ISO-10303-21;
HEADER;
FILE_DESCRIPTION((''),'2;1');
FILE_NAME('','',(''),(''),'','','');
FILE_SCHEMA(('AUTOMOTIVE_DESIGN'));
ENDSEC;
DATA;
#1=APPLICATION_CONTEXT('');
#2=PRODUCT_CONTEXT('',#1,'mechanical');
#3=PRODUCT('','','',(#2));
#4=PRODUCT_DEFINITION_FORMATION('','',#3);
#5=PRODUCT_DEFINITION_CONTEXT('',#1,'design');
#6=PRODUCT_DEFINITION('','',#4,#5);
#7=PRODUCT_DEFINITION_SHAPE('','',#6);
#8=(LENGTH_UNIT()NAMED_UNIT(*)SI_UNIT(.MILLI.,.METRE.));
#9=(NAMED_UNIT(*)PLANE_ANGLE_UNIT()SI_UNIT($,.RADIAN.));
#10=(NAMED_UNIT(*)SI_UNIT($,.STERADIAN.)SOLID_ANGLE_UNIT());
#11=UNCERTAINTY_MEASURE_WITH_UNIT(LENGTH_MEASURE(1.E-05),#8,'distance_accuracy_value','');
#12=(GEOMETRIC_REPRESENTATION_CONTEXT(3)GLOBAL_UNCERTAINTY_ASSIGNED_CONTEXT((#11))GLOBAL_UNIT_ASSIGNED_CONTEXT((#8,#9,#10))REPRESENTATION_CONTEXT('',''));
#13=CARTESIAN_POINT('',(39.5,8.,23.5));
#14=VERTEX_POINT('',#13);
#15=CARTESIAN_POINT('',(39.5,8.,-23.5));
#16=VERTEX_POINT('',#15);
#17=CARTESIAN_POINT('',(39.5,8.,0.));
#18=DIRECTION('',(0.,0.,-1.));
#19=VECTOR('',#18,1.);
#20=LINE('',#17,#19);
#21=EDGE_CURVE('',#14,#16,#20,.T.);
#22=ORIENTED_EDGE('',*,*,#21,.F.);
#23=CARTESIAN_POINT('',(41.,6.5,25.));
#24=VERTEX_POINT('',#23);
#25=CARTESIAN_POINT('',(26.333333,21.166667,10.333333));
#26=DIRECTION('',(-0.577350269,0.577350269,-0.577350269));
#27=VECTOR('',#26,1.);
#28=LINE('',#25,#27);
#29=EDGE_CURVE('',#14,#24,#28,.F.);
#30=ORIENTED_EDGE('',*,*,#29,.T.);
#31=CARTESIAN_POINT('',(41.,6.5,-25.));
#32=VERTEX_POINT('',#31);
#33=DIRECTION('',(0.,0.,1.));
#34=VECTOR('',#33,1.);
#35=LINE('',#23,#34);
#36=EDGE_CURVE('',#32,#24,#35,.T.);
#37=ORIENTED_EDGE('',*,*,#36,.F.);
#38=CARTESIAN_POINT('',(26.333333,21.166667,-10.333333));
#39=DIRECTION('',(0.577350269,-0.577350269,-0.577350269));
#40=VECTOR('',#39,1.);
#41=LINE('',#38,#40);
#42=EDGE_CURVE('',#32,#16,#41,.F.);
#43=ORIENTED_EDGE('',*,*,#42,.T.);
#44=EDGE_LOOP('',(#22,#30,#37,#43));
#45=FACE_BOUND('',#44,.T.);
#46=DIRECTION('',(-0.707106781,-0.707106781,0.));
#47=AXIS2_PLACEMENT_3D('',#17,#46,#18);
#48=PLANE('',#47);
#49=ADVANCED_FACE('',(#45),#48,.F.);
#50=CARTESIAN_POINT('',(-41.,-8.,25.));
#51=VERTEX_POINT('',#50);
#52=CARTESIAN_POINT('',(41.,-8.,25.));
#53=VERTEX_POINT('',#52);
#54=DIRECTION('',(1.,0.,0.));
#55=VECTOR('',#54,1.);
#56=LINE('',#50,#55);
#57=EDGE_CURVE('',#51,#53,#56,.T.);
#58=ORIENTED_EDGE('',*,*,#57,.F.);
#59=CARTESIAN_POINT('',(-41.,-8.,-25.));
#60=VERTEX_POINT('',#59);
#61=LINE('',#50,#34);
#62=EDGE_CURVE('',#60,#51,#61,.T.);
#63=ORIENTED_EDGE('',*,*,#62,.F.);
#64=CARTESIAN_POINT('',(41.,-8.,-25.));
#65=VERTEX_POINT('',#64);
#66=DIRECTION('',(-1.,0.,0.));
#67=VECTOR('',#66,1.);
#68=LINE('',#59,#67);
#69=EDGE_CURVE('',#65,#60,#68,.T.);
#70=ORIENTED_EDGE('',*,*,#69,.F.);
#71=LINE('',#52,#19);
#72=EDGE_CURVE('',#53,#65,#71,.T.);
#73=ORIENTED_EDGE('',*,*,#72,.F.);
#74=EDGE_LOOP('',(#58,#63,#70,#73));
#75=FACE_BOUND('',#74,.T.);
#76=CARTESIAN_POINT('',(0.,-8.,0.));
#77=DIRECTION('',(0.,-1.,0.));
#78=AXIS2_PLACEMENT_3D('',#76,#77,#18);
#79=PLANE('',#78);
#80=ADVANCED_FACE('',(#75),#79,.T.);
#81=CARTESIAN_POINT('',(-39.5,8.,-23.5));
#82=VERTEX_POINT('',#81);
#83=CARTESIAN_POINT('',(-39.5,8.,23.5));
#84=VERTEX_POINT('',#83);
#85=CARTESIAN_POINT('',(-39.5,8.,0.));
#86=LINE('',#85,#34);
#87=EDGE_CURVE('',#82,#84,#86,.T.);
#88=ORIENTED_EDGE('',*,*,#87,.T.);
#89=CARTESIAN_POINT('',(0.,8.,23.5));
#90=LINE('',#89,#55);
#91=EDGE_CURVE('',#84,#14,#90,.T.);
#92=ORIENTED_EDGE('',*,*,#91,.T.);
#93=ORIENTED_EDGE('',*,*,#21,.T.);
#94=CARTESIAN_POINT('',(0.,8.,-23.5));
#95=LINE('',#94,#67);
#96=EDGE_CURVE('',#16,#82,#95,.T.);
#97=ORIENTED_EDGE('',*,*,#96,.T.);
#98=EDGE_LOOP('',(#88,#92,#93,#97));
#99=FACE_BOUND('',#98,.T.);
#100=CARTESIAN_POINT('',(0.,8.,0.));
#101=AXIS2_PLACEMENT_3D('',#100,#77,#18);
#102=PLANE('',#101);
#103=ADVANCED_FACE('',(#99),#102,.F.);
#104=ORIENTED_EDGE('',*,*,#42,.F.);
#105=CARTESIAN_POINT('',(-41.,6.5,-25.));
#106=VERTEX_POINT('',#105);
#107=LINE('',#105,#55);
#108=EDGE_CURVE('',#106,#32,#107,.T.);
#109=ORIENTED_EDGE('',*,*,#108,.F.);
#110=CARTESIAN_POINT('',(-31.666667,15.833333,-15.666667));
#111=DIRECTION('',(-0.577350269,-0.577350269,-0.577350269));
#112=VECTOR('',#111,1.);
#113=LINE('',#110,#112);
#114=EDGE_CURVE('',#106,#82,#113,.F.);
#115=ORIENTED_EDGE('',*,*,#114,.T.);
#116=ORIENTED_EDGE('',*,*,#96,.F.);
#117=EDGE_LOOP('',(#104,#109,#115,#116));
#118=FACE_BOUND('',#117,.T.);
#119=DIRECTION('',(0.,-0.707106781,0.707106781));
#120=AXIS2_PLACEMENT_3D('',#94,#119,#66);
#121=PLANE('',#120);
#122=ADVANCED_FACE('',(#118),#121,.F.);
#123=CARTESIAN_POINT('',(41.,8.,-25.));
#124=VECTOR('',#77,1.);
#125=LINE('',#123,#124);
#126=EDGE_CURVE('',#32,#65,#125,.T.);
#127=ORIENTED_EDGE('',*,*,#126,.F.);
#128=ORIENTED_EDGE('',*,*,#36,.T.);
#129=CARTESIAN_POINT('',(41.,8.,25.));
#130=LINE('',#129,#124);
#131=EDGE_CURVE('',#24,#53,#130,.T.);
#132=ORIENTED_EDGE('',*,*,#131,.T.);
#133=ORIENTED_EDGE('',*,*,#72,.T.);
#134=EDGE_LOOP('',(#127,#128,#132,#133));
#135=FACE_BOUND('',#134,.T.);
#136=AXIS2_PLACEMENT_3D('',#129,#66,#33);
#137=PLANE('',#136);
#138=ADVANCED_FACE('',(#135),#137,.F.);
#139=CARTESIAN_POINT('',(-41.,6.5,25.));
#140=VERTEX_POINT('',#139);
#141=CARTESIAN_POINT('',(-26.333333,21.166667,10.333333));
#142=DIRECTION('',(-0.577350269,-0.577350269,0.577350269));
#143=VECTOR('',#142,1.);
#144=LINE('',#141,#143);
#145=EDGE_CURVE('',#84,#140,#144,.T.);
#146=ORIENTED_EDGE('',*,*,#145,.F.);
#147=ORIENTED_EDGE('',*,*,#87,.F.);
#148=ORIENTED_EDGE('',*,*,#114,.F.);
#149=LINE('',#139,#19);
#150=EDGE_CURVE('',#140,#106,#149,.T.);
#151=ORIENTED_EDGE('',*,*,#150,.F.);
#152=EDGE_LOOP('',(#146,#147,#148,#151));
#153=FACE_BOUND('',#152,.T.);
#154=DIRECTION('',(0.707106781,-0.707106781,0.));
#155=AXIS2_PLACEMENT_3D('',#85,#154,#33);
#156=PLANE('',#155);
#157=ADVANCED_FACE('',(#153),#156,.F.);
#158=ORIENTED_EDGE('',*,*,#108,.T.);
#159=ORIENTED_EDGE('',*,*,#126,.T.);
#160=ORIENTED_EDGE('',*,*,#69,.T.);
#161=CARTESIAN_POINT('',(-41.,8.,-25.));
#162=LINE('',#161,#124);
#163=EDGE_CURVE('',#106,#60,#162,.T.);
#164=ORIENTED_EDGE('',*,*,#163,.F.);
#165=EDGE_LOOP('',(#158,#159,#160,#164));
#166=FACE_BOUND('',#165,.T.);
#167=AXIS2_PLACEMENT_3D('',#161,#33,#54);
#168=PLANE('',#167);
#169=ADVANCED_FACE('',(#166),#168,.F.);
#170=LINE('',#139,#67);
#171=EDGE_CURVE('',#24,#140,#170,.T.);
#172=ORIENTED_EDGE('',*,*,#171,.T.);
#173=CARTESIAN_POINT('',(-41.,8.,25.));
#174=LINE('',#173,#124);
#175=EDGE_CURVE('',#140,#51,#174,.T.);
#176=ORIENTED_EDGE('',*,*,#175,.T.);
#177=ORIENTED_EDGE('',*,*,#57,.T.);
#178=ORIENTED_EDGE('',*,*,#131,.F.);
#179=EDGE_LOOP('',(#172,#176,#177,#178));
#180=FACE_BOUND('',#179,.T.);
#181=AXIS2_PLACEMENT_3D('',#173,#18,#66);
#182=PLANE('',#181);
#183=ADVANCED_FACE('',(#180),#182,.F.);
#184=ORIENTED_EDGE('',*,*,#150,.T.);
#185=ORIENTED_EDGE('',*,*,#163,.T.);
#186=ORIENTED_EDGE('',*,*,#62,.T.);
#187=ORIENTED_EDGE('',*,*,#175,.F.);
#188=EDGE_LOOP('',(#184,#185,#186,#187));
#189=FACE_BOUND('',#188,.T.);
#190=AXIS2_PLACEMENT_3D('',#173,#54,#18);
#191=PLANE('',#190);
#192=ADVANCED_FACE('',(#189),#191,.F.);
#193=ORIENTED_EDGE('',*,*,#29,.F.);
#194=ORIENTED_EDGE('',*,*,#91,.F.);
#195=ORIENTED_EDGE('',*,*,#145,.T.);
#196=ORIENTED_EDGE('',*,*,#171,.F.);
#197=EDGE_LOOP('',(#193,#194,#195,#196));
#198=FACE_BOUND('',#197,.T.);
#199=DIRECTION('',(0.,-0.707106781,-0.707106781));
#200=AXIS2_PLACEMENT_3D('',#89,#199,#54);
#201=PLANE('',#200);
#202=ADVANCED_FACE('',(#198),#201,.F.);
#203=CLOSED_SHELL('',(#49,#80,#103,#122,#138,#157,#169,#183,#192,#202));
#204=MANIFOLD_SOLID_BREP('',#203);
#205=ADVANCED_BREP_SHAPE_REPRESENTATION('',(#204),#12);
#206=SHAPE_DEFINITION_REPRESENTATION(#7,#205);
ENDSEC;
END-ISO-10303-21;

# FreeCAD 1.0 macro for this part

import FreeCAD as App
import Part
import Sketcher

V = App.Vector
Q = App.Units.Quantity


def edges_at(feature, points):
    """Names of the edges that pass closest to the given points."""
    edges = feature.Shape.Edges
    near = lambda p: min(range(len(edges)), key=lambda i: edges[i].distToShape(Part.Vertex(*p))[0])
    return sorted({f"Edge{near(p) + 1}" for p in points})


def add_polygon(sketch, points):
    """Adds a closed chain of lines whose ends are joined by coincident constraints."""
    first, n = sketch.GeometryCount, len(points)
    for a, b in zip(points, points[1:] + points[:1]):
        sketch.addGeometry(Part.LineSegment(App.Vector(*a, 0), App.Vector(*b, 0)), False)
    for i in range(n):
        sketch.addConstraint(Sketcher.Constraint("Coincident", first + i, 2, first + (i + 1) % n, 1))

doc = App.newDocument("Part")
params = doc.addObject("Spreadsheet::Sheet", "Params")
for row, (alias, value) in enumerate([
    ("sketch1_width", "82 mm"),
    ("sketch1_height", "50 mm"),
    ("pad1_length", "16 mm"),
    ("chamfer_size", "1.5 mm"),
], start=1):
    params.set(f"A{row}", alias)
    params.set(f"B{row}", "=" + value)
    params.setAlias(f"B{row}", alias)

body = doc.addObject("PartDesign::Body", "Body")

sketch1 = body.newObject("Sketcher::SketchObject", "Sketch")
sketch1.AttachmentSupport = (doc.getObject("XZ_Plane"), [""])
sketch1.MapMode = "FlatFace"
add_polygon(sketch1, [(-41, -25), (-41, 25), (41, 25), (41, -25)])
sketch1.addConstraint(Sketcher.Constraint("Vertical", 0))
sketch1.addConstraint(Sketcher.Constraint("Horizontal", 1))
sketch1.addConstraint(Sketcher.Constraint("Vertical", 2))
sketch1.addConstraint(Sketcher.Constraint("Horizontal", 3))
sketch1.addConstraint(Sketcher.Constraint("Symmetric", 0, 2, 2, 2, -1, 1))
sketch1.addConstraint(Sketcher.Constraint("DistanceX", 1, 1, 1, 2, Q("82 mm")))
sketch1.addConstraint(Sketcher.Constraint("DistanceY", 0, 1, 0, 2, Q("50 mm")))
sketch1.setExpression("Constraints[9]", "Params.sketch1_width")
sketch1.setExpression("Constraints[10]", "Params.sketch1_height")
pad1 = body.newObject("PartDesign::Pad", "Pad")
pad1.Profile = sketch1
pad1.setExpression("Length", "Params.pad1_length")
pad1.Midplane = True
doc.recompute()

chamfer = body.newObject("PartDesign::Chamfer", "Chamfer")
chamfer.Base = (pad1, edges_at(pad1, [
    (-41, 8, 0),
    (0, 8, 25),
    (41, 8, 0),
    (0, 8, -25),
]))
chamfer.setExpression("Size", "Params.chamfer_size")

doc.recompute()
